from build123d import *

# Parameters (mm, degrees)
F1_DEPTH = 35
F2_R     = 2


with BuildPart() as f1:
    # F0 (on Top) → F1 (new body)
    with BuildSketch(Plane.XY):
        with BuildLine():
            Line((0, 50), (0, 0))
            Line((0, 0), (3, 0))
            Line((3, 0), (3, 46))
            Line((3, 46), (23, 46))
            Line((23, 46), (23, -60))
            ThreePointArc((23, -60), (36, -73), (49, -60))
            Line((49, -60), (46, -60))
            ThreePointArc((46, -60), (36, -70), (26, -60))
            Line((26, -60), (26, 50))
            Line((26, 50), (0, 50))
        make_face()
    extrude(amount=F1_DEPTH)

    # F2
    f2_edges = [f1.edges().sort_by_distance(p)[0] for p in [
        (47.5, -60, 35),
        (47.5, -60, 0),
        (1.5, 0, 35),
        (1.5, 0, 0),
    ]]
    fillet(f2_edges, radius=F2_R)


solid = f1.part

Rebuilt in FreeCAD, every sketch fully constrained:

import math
import FreeCAD as App
import Part
import Sketcher
Q = App.Units.Quantity


def edges_at(feature, points):
    """Names of the edges that pass closest to the given points."""
    edges = feature.Shape.Edges
    near = lambda p: min(range(len(edges)), key=lambda i: edges[i].distToShape(Part.Vertex(*p))[0])
    return sorted({f"Edge{near(p) + 1}" for p in points})

doc = App.newDocument("Part")
params = doc.addObject("Spreadsheet::Sheet", "Params")
for row, (alias, value) in enumerate([
    ("sketch1_radius", "13 mm"),
    ("sketch1_radius2", "10 mm"),
    ("sketch1_width", "20 mm"),
    ("sketch1_height", "50 mm"),
    ("sketch1_height2", "46 mm"),
    ("pad1_length", "35 mm"),
    ("fillet_radius", "2 mm"),
], start=1):
    params.set(f"A{row}", alias)
    params.set(f"B{row}", "=" + value)
    params.setAlias(f"B{row}", alias)

body = doc.addObject("PartDesign::Body", "Body")

sketch1 = body.newObject("Sketcher::SketchObject", "Sketch")
sketch1.AttachmentSupport = (doc.getObject("XY_Plane"), [""])
sketch1.MapMode = "FlatFace"
sketch1.addGeometry([
    Part.LineSegment(App.Vector(0, 50, 0), App.Vector(0, 0, 0)),
    Part.LineSegment(App.Vector(0, 0, 0), App.Vector(3, 0, 0)),
    Part.LineSegment(App.Vector(3, 0, 0), App.Vector(3, 46, 0)),
    Part.LineSegment(App.Vector(3, 46, 0), App.Vector(23, 46, 0)),
    Part.LineSegment(App.Vector(23, 46, 0), App.Vector(23, -60, 0)),
    Part.ArcOfCircle(Part.Circle(App.Vector(36, -60, 0), App.Vector(0, 0, 1), 13), math.radians(180), math.radians(360)),
    Part.LineSegment(App.Vector(49, -60, 0), App.Vector(46, -60, 0)),
    Part.ArcOfCircle(Part.Circle(App.Vector(36, -60, 0), App.Vector(0, 0, 1), 10), math.radians(180), math.radians(360)),
    Part.LineSegment(App.Vector(26, -60, 0), App.Vector(26, 50, 0)),
    Part.LineSegment(App.Vector(26, 50, 0), App.Vector(0, 50, 0)),
], False)
sketch1.addConstraint([
    Sketcher.Constraint("Coincident", 0, 2, 1, 1),
    Sketcher.Constraint("Coincident", 1, 2, 2, 1),
    Sketcher.Constraint("Coincident", 2, 2, 3, 1),
    Sketcher.Constraint("Coincident", 3, 2, 4, 1),
    Sketcher.Constraint("Tangent", 4, 2, 5, 1),
    Sketcher.Constraint("Coincident", 5, 2, 6, 1),
    Sketcher.Constraint("Coincident", 6, 2, 7, 2),
    Sketcher.Constraint("Tangent", 7, 1, 8, 1),
    Sketcher.Constraint("Coincident", 8, 2, 9, 1),
    Sketcher.Constraint("Coincident", 9, 2, 0, 1),
    Sketcher.Constraint("Vertical", 0),
    Sketcher.Constraint("Horizontal", 1),
    Sketcher.Constraint("Vertical", 2),
    Sketcher.Constraint("Horizontal", 3),
    Sketcher.Constraint("Vertical", 4),
    Sketcher.Constraint("Horizontal", 6),
    Sketcher.Constraint("Vertical", 8),
    Sketcher.Constraint("Horizontal", 9),
    Sketcher.Constraint("Coincident", 0, 2, -1, 1),
    Sketcher.Constraint("Coincident", 7, 3, 5, 3),
    Sketcher.Constraint("Horizontal", 4, 2, 5, 2),
    Sketcher.Constraint("Equal", 1, 6),
    Sketcher.Constraint("Radius", 5, Q("13 mm")),
    Sketcher.Constraint("Radius", 7, Q("10 mm")),
    Sketcher.Constraint("DistanceX", 3, 1, 3, 2, Q("20 mm")),
    Sketcher.Constraint("DistanceY", 0, 2, 0, 1, Q("50 mm")),
    Sketcher.Constraint("DistanceY", 2, 1, 2, 2, Q("46 mm")),
    Sketcher.Constraint("DistanceY", 4, 2, 4, 1, Q("106 mm")),
])
sketch1.setExpression("Constraints[22]", "Params.sketch1_radius")
sketch1.setExpression("Constraints[23]", "Params.sketch1_radius2")
sketch1.setExpression("Constraints[24]", "Params.sketch1_width")
sketch1.setExpression("Constraints[25]", "Params.sketch1_height")
sketch1.setExpression("Constraints[26]", "Params.sketch1_height2")
pad1 = body.newObject("PartDesign::Pad", "Pad")
pad1.Profile = sketch1
pad1.setExpression("Length", "Params.pad1_length")
doc.recompute()

fillet = body.newObject("PartDesign::Fillet", "Fillet")
fillet.Base = (pad1, edges_at(pad1, [
    (47.5, -60, 35),
    (47.5, -60, 0),
    (1.5, 0, 35),
    (1.5, 0, 0),
]))
fillet.setExpression("Radius", "Params.fillet_radius")

doc.recompute()
